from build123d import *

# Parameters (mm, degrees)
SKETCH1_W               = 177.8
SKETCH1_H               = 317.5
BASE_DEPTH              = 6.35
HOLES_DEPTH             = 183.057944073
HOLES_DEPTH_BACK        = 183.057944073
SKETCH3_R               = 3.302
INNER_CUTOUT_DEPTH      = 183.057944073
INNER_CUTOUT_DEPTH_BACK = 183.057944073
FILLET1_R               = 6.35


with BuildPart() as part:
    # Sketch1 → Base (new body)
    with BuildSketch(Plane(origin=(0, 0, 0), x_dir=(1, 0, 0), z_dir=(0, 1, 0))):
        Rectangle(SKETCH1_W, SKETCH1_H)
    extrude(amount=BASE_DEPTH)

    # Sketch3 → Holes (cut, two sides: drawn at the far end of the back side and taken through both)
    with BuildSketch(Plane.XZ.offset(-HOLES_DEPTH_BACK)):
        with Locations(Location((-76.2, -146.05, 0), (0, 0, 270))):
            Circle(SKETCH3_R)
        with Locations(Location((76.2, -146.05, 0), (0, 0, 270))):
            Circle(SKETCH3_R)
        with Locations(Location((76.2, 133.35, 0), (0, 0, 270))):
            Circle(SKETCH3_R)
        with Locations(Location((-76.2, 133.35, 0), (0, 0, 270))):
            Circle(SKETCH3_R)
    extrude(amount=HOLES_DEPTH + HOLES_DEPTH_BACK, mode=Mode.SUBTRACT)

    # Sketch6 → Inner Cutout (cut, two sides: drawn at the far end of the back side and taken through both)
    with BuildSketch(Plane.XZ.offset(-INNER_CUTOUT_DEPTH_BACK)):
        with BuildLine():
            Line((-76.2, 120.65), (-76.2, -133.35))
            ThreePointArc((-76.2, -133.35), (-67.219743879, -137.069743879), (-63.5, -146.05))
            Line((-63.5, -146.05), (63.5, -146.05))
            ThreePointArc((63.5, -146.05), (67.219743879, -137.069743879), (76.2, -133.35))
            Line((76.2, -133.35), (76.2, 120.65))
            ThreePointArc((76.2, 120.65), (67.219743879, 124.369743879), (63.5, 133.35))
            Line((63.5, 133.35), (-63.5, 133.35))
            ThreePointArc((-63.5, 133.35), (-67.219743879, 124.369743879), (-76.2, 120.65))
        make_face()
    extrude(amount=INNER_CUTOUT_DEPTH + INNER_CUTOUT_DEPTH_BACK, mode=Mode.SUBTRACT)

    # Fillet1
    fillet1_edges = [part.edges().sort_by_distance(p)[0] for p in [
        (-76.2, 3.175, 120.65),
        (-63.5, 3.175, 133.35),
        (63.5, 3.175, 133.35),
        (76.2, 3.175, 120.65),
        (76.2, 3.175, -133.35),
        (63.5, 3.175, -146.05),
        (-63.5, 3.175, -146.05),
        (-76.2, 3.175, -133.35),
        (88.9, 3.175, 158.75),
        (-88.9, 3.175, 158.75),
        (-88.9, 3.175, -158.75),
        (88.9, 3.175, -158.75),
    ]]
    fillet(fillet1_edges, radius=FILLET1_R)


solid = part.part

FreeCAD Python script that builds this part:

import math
import FreeCAD as App
import Part
import Sketcher
from FreeCAD import Vector
Q = App.Units.Quantity


def edges_at(feature, points):
    """Names of the edges that pass closest to the given points."""
    edges = feature.Shape.Edges
    near = lambda p: min(range(len(edges)), key=lambda i: edges[i].distToShape(Part.Vertex(*p))[0])
    return sorted({f"Edge{near(p) + 1}" for p in points})

doc = App.newDocument("Part")
body = doc.addObject("PartDesign::Body", "Body")

# Sketch on XZ plane
sketch1 = body.newObject("Sketcher::SketchObject", "Sketch")
sketch1.AttachmentSupport = (doc.getObject("XZ_Plane"), [""])
sketch1.MapMode = "FlatFace"
sketch1.addGeometry([
    Part.LineSegment(Vector(-89, -159, 0), Vector(-89, 159, 0)),
    Part.LineSegment(Vector(-89, 159, 0), Vector(89, 159, 0)),
    Part.LineSegment(Vector(89, 159, 0), Vector(89, -159, 0)),
    Part.LineSegment(Vector(89, -159, 0), Vector(-89, -159, 0)),
], False)
sketch1.addConstraint([
    Sketcher.Constraint("Coincident", 0, 2, 1, 1),
    Sketcher.Constraint("Coincident", 1, 2, 2, 1),
    Sketcher.Constraint("Coincident", 2, 2, 3, 1),
    Sketcher.Constraint("Coincident", 3, 2, 0, 1),
    Sketcher.Constraint("Vertical", 0),
    Sketcher.Constraint("Horizontal", 1),
    Sketcher.Constraint("Vertical", 2),
    Sketcher.Constraint("Horizontal", 3),
    Sketcher.Constraint("Symmetric", 0, 2, 2, 2, -1, 1),
    Sketcher.Constraint("DistanceX", 1, 1, 1, 2, Q("7 in")),
    Sketcher.Constraint("DistanceY", 0, 1, 0, 2, Q("12.5 in")),
])
pad1 = body.newObject("PartDesign::Pad", "Pad")
pad1.Profile = sketch1
pad1.Length = Q("0.25 in")
pad1.Reversed = True

# Sketch on XZ plane
sketch2 = body.newObject("Sketcher::SketchObject", "Sketch001")
sketch2.AttachmentSupport = (doc.getObject("XZ_Plane"), [""])
sketch2.MapMode = "FlatFace"
sketch2.addGeometry([
    Part.Circle(Vector(-76.2, -146.1, 0), Vector(0, 0, 1), 3.3),
    Part.Circle(Vector(76.2, -146.1, 0), Vector(0, 0, 1), 3.3),
    Part.Circle(Vector(76.2, 133.3, 0), Vector(0, 0, 1), 3.3),
    Part.Circle(Vector(-76.2, 133.3, 0), Vector(0, 0, 1), 3.3),
], False)
sketch2.addConstraint([
    Sketcher.Constraint("Equal", 0, 1),
    Sketcher.Constraint("Equal", 1, 2),
    Sketcher.Constraint("Equal", 2, 3),
    Sketcher.Constraint("Symmetric", 0, 3, 1, 3, -2),
    Sketcher.Constraint("Symmetric", 2, 3, 3, 3, -2),
    Sketcher.Constraint("Vertical", 1, 3, 2, 3),
    Sketcher.Constraint("Diameter", 0, Q("0.26 in")),
    Sketcher.Constraint("DistanceX", 0, 3, -1, 1, Q("3 in")),
    Sketcher.Constraint("DistanceY", 1, 3, 2, 3, Q("11 in")),
    Sketcher.Constraint("DistanceY", 0, 3, -1, 1, Q("5.75 in")),
])
pocket1 = body.newObject("PartDesign::Pocket", "Pocket")
pocket1.Profile = sketch2
pocket1.Type = "ThroughAll"
pocket1.Midplane = True

# Sketch on XZ plane
sketch3 = body.newObject("Sketcher::SketchObject", "Sketch002")
sketch3.AttachmentSupport = (doc.getObject("XZ_Plane"), [""])
sketch3.MapMode = "FlatFace"
sketch3.addGeometry([
    Part.LineSegment(Vector(-76, 121, 0), Vector(-76, -133, 0)),  # 0
    Part.ArcOfCircle(Part.Circle(Vector(-76, -146, 0), Vector(0, 0, 1), 13), math.radians(0), math.radians(90)),  # 1
    Part.LineSegment(Vector(-64, -146, 0), Vector(64, -146, 0)),  # 2
    Part.ArcOfCircle(Part.Circle(Vector(76, -146, 0), Vector(0, 0, 1), 13), math.radians(90), math.radians(180)),  # 3
    Part.LineSegment(Vector(76, -133, 0), Vector(76, 121, 0)),  # 4
    Part.ArcOfCircle(Part.Circle(Vector(76, 133, 0), Vector(0, 0, 1), 13), math.radians(180), math.radians(270)),  # 5
    Part.LineSegment(Vector(64, 133, 0), Vector(-64, 133, 0)),  # 6
    Part.ArcOfCircle(Part.Circle(Vector(-76, 133, 0), Vector(0, 0, 1), 13), math.radians(-90), math.radians(0)),  # 7
], False)
sketch3.addConstraint([
    Sketcher.Constraint("Coincident", 0, 2, 1, 2),
    Sketcher.Constraint("Coincident", 1, 1, 2, 1),
    Sketcher.Constraint("Coincident", 2, 2, 3, 2),
    Sketcher.Constraint("Coincident", 3, 1, 4, 1),
    Sketcher.Constraint("Coincident", 4, 2, 5, 2),
    Sketcher.Constraint("Coincident", 5, 1, 6, 1),
    Sketcher.Constraint("Coincident", 6, 2, 7, 2),
    Sketcher.Constraint("Coincident", 7, 1, 0, 1),
    Sketcher.Constraint("Vertical", 0),
    Sketcher.Constraint("Horizontal", 2),
    Sketcher.Constraint("Vertical", 4),
    Sketcher.Constraint("Horizontal", 6),
    Sketcher.Constraint("Equal", 1, 3),
    Sketcher.Constraint("Equal", 3, 5),
    Sketcher.Constraint("Equal", 5, 7),
    Sketcher.Constraint("Symmetric", 1, 3, 3, 3, -2),
    Sketcher.Constraint("Symmetric", 5, 3, 7, 3, -2),
    Sketcher.Constraint("Horizontal", 3, 3, 1, 1),
    Sketcher.Constraint("Horizontal", 7, 3, 5, 1),
    Sketcher.Constraint("Vertical", 3, 3, 5, 3),
    Sketcher.Constraint("Vertical", 7, 3, 0, 2),
    Sketcher.Constraint("Vertical", 5, 3, 3, 1),
    Sketcher.Constraint("Radius", 1, Q("0.5 in")),
    Sketcher.Constraint("DistanceX", 2, 1, 2, 2, Q("5 in")),
    Sketcher.Constraint("DistanceY", 0, 2, 0, 1, Q("10 in")),
    Sketcher.Constraint("DistanceY", 1, 3, -1, 1, Q("5.75 in")),
])
pocket2 = body.newObject("PartDesign::Pocket", "Pocket001")
pocket2.Profile = sketch3
pocket2.Type = "ThroughAll"
pocket2.Midplane = True
doc.recompute()

fillet = body.newObject("PartDesign::Fillet", "Fillet")
fillet.Base = (pocket2, edges_at(pocket2, [
    (-76.2, 3.175, 120.65),
    (-63.5, 3.175, 133.35),
    (63.5, 3.175, 133.35),
    (76.2, 3.175, 120.65),
    (76.2, 3.175, -133.35),
    (63.5, 3.175, -146.05),
    (-63.5, 3.175, -146.05),
    (-76.2, 3.175, -133.35),
    (88.9, 3.175, 158.75),
    (-88.9, 3.175, 158.75),
    (-88.9, 3.175, -158.75),
    (88.9, 3.175, -158.75),
]))
fillet.Radius = Q("0.25 in")

doc.recompute()
